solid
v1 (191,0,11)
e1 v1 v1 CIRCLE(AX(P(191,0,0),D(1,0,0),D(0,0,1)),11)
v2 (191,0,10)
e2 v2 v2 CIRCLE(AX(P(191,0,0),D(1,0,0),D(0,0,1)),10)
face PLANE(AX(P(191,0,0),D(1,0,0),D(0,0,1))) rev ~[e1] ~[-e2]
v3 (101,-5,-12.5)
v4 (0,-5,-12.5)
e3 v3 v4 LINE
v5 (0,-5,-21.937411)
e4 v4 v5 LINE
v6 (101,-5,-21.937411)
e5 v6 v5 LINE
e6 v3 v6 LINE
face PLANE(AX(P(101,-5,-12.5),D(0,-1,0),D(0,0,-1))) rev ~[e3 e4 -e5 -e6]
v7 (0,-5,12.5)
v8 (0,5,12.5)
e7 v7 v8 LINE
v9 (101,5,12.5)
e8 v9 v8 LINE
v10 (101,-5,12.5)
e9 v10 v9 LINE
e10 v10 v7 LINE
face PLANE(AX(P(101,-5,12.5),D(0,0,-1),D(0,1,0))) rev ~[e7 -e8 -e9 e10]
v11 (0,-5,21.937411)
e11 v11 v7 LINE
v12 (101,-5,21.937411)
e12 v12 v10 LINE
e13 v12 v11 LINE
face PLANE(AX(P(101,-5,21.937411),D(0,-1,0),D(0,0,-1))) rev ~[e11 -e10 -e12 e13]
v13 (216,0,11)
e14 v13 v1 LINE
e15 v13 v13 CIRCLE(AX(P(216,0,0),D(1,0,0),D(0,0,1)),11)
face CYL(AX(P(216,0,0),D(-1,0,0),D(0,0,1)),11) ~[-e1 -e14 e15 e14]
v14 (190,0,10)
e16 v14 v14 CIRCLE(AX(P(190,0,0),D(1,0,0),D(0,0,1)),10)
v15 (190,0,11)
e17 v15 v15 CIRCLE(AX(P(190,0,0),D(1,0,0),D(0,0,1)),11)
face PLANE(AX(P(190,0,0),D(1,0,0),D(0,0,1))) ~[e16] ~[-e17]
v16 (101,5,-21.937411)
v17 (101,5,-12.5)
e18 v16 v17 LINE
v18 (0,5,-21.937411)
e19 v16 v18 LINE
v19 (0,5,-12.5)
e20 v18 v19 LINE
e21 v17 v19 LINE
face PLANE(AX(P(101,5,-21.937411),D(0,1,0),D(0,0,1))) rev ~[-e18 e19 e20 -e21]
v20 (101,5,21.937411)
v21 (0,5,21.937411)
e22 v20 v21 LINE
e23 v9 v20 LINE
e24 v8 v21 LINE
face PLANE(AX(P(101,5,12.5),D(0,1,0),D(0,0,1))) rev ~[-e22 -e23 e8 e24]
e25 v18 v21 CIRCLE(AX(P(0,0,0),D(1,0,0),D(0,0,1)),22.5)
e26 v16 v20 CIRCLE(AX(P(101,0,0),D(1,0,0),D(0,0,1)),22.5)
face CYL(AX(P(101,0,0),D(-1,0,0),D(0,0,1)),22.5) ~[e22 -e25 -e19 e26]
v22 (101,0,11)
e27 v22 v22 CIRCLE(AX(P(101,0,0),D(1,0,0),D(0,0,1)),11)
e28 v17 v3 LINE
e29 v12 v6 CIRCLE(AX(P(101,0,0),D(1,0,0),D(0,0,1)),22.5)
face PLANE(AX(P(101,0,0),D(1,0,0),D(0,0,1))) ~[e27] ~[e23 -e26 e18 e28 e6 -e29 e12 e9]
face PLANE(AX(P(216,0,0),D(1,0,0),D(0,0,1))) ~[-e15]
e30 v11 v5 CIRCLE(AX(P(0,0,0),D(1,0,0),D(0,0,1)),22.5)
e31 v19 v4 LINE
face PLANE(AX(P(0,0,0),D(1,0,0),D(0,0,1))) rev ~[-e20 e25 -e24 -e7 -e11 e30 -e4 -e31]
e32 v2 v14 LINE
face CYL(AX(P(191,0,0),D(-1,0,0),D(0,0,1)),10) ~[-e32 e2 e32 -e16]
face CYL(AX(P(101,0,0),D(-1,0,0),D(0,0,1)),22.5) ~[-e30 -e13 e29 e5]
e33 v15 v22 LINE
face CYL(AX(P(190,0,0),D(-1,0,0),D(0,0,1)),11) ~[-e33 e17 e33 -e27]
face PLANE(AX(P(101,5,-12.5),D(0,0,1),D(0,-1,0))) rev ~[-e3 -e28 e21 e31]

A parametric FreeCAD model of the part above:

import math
import FreeCAD as App
import Part
import Sketcher
from FreeCAD import Vector
Q = App.Units.Quantity


def add_polygon(sketch, points):
    """Adds a closed chain of lines whose ends are joined by coincident constraints."""
    first, n = sketch.GeometryCount, len(points)
    for a, b in zip(points, points[1:] + points[:1]):
        sketch.addGeometry(Part.LineSegment(App.Vector(*a, 0), App.Vector(*b, 0)), False)
    for i in range(n):
        sketch.addConstraint(Sketcher.Constraint("Coincident", first + i, 2, first + (i + 1) % n, 1))

doc = App.newDocument("Part")
body = doc.addObject("PartDesign::Body", "Body")

# Sketch on XZ plane
sketch1 = body.newObject("Sketcher::SketchObject", "Sketch")
sketch1.AttachmentSupport = (doc.getObject("XZ_Plane"), [""])
sketch1.MapMode = "FlatFace"
add_polygon(sketch1, [(0, 22.5), (0, 0), (216, 0), (216, 11), (191, 11), (191, 10), (190, 10), (190, 11), (101, 11), (101, 22.5)])  # lines 0-9
sketch1.addConstraint([
    Sketcher.Constraint("Vertical", 0),
    Sketcher.Constraint("Horizontal", 1),
    Sketcher.Constraint("Vertical", 2),
    Sketcher.Constraint("Horizontal", 3),
    Sketcher.Constraint("Vertical", 4),
    Sketcher.Constraint("Horizontal", 5),
    Sketcher.Constraint("Vertical", 6),
    Sketcher.Constraint("Horizontal", 7),
    Sketcher.Constraint("Vertical", 8),
    Sketcher.Constraint("Horizontal", 9),
    Sketcher.Constraint("Coincident", 0, 2, -1, 1),
    Sketcher.Constraint("Horizontal", 3, 2, 6, 2),
    Sketcher.Constraint("Equal", 5, 4),
    Sketcher.Constraint("DistanceX", 1, 1, 1, 2, Q("216 mm")),
    Sketcher.Constraint("DistanceX", 3, 2, 3, 1, Q("25 mm")),
    Sketcher.Constraint("DistanceX", 5, 2, 5, 1, Q("1 mm")),
    Sketcher.Constraint("DistanceX", 7, 2, 7, 1, Q("89 mm")),
    Sketcher.Constraint("DistanceY", 2, 1, 2, 2, Q("11 mm")),
    Sketcher.Constraint("DistanceY", 0, 2, 0, 1, Q("22.5 mm")),
])
revolution = body.newObject("PartDesign::Revolution", "Revolution")
revolution.Profile = sketch1
revolution.ReferenceAxis = (sketch1, ["H_Axis"])
revolution.Angle = 360

# Sketch on YZ plane
sketch2 = body.newObject("Sketcher::SketchObject", "Sketch001")
sketch2.AttachmentSupport = (doc.getObject("YZ_Plane"), [""])
sketch2.MapMode = "FlatFace"
sketch2.AttachmentOffset = App.Placement(Vector(0, 0, 101), App.Rotation())
sketch2.addGeometry([
    Part.ArcOfCircle(Part.Circle(Vector(0, -0.000001, 0), Vector(0, 0, 1), 22.500001), math.radians(77.160412), math.radians(102.839588)),  # 0
    Part.LineSegment(Vector(-5, 21.937411, 0), Vector(-5, 12.5, 0)),  # 1
    Part.LineSegment(Vector(-5, 12.5, 0), Vector(5, 12.5, 0)),  # 2
    Part.LineSegment(Vector(5, 12.5, 0), Vector(5, 21.937411, 0)),  # 3
    Part.LineSegment(Vector(-5, -12.5, 0), Vector(-5, -21.937411, 0)),  # 4
    Part.ArcOfCircle(Part.Circle(Vector(0, 0.000001, 0), Vector(0, 0, 1), 22.500001), math.radians(-102.839588), math.radians(-77.160412)),  # 5
    Part.LineSegment(Vector(5, -21.937411, 0), Vector(5, -12.5, 0)),  # 6
    Part.LineSegment(Vector(5, -12.5, 0), Vector(-5, -12.5, 0)),  # 7
], False)
sketch2.addConstraint([
    Sketcher.Constraint("Coincident", 0, 2, 1, 1),
    Sketcher.Constraint("Coincident", 1, 2, 2, 1),
    Sketcher.Constraint("Coincident", 2, 2, 3, 1),
    Sketcher.Constraint("Coincident", 3, 2, 0, 1),
    Sketcher.Constraint("Coincident", 4, 2, 5, 1),
    Sketcher.Constraint("Coincident", 5, 2, 6, 1),
    Sketcher.Constraint("Coincident", 6, 2, 7, 1),
    Sketcher.Constraint("Coincident", 7, 2, 4, 1),
    Sketcher.Constraint("Vertical", 1),
    Sketcher.Constraint("Horizontal", 2),
    Sketcher.Constraint("Vertical", 3),
    Sketcher.Constraint("Vertical", 4),
    Sketcher.Constraint("Vertical", 6),
    Sketcher.Constraint("Horizontal", 7),
    Sketcher.Constraint("Coincident", 0, 3, -1, 1),
    Sketcher.Constraint("Coincident", 5, 3, -1, 1),
    Sketcher.Constraint("Equal", 0, 5),
    Sketcher.Constraint("Symmetric", 1, 2, 6, 2, -1, 1),
    Sketcher.Constraint("Horizontal", 0, 2, 3, 2),
    Sketcher.Constraint("Horizontal", 4, 2, 5, 2),
    Sketcher.Constraint("Radius", 0, Q("22.500001 mm")),
    Sketcher.Constraint("DistanceX", 2, 1, 2, 2, Q("10 mm")),
    Sketcher.Constraint("DistanceY", 6, 2, 2, 2, Q("25 mm")),
])
pocket1 = body.newObject("PartDesign::Pocket", "Pocket")
pocket1.Profile = sketch2
pocket1.Length = 125

doc.recompute()
